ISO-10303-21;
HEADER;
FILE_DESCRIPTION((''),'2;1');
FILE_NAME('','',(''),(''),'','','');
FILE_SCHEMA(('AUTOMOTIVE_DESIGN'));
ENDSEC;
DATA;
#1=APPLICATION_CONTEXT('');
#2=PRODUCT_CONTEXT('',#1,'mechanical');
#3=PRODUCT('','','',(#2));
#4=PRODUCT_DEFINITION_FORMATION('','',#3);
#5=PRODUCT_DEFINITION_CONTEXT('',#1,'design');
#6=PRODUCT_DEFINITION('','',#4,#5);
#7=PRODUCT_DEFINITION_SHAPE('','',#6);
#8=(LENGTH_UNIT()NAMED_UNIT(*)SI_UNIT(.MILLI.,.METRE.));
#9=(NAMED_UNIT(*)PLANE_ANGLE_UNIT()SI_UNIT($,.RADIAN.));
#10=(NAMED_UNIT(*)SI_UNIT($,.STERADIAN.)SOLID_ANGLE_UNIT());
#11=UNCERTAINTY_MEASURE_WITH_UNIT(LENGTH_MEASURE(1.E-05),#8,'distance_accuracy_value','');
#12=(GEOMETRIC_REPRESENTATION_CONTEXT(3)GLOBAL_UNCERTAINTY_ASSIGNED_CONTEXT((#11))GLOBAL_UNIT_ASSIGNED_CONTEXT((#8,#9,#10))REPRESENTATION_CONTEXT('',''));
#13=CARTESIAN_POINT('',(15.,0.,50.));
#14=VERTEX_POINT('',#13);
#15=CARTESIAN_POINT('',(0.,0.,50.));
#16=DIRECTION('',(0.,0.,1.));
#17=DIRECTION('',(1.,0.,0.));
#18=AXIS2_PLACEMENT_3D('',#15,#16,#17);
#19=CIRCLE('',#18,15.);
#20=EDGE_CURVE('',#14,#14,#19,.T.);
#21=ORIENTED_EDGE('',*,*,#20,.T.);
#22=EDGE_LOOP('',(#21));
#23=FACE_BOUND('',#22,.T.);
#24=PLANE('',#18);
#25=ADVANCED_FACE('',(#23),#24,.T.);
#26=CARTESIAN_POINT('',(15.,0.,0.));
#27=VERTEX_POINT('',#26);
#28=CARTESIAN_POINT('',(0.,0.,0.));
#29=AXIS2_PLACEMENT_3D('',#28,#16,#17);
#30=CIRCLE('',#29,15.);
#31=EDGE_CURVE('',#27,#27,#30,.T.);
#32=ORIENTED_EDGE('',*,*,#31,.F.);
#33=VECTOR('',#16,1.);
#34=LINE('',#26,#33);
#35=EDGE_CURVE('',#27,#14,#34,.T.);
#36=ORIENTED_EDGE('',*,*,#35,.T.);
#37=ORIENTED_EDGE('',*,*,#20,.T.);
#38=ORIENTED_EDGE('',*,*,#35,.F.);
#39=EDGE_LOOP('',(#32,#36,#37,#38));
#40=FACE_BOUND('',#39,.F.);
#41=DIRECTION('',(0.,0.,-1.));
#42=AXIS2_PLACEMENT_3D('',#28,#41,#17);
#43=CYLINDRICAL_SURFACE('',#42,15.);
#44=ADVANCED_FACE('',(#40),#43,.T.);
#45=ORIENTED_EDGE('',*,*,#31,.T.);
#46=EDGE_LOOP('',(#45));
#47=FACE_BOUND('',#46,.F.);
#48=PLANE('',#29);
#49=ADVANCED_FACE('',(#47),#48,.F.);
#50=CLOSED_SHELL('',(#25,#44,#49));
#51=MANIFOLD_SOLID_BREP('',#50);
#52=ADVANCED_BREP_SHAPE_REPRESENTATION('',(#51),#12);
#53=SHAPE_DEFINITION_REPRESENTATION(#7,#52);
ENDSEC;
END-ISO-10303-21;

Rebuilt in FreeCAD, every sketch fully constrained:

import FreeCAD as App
import Part
import Sketcher

doc = App.newDocument("Part")
body = doc.addObject("PartDesign::Body", "Body")

# Sketch on XY plane
sketch1 = body.newObject("Sketcher::SketchObject", "Sketch")
sketch1.AttachmentSupport = (doc.getObject("XY_Plane"), [""])
sketch1.MapMode = "FlatFace"
sketch1.addGeometry(Part.Circle(App.Vector(0, 0, 0), App.Vector(0, 0, 1), 15), False)
sketch1.addConstraint([
    Sketcher.Constraint("Coincident", 0, 3, -1, 1),
    Sketcher.Constraint("Diameter", 0, 30.0),
])
pad1 = body.newObject("PartDesign::Pad", "Pad")
pad1.Profile = sketch1
pad1.Length = 50

doc.recompute()
